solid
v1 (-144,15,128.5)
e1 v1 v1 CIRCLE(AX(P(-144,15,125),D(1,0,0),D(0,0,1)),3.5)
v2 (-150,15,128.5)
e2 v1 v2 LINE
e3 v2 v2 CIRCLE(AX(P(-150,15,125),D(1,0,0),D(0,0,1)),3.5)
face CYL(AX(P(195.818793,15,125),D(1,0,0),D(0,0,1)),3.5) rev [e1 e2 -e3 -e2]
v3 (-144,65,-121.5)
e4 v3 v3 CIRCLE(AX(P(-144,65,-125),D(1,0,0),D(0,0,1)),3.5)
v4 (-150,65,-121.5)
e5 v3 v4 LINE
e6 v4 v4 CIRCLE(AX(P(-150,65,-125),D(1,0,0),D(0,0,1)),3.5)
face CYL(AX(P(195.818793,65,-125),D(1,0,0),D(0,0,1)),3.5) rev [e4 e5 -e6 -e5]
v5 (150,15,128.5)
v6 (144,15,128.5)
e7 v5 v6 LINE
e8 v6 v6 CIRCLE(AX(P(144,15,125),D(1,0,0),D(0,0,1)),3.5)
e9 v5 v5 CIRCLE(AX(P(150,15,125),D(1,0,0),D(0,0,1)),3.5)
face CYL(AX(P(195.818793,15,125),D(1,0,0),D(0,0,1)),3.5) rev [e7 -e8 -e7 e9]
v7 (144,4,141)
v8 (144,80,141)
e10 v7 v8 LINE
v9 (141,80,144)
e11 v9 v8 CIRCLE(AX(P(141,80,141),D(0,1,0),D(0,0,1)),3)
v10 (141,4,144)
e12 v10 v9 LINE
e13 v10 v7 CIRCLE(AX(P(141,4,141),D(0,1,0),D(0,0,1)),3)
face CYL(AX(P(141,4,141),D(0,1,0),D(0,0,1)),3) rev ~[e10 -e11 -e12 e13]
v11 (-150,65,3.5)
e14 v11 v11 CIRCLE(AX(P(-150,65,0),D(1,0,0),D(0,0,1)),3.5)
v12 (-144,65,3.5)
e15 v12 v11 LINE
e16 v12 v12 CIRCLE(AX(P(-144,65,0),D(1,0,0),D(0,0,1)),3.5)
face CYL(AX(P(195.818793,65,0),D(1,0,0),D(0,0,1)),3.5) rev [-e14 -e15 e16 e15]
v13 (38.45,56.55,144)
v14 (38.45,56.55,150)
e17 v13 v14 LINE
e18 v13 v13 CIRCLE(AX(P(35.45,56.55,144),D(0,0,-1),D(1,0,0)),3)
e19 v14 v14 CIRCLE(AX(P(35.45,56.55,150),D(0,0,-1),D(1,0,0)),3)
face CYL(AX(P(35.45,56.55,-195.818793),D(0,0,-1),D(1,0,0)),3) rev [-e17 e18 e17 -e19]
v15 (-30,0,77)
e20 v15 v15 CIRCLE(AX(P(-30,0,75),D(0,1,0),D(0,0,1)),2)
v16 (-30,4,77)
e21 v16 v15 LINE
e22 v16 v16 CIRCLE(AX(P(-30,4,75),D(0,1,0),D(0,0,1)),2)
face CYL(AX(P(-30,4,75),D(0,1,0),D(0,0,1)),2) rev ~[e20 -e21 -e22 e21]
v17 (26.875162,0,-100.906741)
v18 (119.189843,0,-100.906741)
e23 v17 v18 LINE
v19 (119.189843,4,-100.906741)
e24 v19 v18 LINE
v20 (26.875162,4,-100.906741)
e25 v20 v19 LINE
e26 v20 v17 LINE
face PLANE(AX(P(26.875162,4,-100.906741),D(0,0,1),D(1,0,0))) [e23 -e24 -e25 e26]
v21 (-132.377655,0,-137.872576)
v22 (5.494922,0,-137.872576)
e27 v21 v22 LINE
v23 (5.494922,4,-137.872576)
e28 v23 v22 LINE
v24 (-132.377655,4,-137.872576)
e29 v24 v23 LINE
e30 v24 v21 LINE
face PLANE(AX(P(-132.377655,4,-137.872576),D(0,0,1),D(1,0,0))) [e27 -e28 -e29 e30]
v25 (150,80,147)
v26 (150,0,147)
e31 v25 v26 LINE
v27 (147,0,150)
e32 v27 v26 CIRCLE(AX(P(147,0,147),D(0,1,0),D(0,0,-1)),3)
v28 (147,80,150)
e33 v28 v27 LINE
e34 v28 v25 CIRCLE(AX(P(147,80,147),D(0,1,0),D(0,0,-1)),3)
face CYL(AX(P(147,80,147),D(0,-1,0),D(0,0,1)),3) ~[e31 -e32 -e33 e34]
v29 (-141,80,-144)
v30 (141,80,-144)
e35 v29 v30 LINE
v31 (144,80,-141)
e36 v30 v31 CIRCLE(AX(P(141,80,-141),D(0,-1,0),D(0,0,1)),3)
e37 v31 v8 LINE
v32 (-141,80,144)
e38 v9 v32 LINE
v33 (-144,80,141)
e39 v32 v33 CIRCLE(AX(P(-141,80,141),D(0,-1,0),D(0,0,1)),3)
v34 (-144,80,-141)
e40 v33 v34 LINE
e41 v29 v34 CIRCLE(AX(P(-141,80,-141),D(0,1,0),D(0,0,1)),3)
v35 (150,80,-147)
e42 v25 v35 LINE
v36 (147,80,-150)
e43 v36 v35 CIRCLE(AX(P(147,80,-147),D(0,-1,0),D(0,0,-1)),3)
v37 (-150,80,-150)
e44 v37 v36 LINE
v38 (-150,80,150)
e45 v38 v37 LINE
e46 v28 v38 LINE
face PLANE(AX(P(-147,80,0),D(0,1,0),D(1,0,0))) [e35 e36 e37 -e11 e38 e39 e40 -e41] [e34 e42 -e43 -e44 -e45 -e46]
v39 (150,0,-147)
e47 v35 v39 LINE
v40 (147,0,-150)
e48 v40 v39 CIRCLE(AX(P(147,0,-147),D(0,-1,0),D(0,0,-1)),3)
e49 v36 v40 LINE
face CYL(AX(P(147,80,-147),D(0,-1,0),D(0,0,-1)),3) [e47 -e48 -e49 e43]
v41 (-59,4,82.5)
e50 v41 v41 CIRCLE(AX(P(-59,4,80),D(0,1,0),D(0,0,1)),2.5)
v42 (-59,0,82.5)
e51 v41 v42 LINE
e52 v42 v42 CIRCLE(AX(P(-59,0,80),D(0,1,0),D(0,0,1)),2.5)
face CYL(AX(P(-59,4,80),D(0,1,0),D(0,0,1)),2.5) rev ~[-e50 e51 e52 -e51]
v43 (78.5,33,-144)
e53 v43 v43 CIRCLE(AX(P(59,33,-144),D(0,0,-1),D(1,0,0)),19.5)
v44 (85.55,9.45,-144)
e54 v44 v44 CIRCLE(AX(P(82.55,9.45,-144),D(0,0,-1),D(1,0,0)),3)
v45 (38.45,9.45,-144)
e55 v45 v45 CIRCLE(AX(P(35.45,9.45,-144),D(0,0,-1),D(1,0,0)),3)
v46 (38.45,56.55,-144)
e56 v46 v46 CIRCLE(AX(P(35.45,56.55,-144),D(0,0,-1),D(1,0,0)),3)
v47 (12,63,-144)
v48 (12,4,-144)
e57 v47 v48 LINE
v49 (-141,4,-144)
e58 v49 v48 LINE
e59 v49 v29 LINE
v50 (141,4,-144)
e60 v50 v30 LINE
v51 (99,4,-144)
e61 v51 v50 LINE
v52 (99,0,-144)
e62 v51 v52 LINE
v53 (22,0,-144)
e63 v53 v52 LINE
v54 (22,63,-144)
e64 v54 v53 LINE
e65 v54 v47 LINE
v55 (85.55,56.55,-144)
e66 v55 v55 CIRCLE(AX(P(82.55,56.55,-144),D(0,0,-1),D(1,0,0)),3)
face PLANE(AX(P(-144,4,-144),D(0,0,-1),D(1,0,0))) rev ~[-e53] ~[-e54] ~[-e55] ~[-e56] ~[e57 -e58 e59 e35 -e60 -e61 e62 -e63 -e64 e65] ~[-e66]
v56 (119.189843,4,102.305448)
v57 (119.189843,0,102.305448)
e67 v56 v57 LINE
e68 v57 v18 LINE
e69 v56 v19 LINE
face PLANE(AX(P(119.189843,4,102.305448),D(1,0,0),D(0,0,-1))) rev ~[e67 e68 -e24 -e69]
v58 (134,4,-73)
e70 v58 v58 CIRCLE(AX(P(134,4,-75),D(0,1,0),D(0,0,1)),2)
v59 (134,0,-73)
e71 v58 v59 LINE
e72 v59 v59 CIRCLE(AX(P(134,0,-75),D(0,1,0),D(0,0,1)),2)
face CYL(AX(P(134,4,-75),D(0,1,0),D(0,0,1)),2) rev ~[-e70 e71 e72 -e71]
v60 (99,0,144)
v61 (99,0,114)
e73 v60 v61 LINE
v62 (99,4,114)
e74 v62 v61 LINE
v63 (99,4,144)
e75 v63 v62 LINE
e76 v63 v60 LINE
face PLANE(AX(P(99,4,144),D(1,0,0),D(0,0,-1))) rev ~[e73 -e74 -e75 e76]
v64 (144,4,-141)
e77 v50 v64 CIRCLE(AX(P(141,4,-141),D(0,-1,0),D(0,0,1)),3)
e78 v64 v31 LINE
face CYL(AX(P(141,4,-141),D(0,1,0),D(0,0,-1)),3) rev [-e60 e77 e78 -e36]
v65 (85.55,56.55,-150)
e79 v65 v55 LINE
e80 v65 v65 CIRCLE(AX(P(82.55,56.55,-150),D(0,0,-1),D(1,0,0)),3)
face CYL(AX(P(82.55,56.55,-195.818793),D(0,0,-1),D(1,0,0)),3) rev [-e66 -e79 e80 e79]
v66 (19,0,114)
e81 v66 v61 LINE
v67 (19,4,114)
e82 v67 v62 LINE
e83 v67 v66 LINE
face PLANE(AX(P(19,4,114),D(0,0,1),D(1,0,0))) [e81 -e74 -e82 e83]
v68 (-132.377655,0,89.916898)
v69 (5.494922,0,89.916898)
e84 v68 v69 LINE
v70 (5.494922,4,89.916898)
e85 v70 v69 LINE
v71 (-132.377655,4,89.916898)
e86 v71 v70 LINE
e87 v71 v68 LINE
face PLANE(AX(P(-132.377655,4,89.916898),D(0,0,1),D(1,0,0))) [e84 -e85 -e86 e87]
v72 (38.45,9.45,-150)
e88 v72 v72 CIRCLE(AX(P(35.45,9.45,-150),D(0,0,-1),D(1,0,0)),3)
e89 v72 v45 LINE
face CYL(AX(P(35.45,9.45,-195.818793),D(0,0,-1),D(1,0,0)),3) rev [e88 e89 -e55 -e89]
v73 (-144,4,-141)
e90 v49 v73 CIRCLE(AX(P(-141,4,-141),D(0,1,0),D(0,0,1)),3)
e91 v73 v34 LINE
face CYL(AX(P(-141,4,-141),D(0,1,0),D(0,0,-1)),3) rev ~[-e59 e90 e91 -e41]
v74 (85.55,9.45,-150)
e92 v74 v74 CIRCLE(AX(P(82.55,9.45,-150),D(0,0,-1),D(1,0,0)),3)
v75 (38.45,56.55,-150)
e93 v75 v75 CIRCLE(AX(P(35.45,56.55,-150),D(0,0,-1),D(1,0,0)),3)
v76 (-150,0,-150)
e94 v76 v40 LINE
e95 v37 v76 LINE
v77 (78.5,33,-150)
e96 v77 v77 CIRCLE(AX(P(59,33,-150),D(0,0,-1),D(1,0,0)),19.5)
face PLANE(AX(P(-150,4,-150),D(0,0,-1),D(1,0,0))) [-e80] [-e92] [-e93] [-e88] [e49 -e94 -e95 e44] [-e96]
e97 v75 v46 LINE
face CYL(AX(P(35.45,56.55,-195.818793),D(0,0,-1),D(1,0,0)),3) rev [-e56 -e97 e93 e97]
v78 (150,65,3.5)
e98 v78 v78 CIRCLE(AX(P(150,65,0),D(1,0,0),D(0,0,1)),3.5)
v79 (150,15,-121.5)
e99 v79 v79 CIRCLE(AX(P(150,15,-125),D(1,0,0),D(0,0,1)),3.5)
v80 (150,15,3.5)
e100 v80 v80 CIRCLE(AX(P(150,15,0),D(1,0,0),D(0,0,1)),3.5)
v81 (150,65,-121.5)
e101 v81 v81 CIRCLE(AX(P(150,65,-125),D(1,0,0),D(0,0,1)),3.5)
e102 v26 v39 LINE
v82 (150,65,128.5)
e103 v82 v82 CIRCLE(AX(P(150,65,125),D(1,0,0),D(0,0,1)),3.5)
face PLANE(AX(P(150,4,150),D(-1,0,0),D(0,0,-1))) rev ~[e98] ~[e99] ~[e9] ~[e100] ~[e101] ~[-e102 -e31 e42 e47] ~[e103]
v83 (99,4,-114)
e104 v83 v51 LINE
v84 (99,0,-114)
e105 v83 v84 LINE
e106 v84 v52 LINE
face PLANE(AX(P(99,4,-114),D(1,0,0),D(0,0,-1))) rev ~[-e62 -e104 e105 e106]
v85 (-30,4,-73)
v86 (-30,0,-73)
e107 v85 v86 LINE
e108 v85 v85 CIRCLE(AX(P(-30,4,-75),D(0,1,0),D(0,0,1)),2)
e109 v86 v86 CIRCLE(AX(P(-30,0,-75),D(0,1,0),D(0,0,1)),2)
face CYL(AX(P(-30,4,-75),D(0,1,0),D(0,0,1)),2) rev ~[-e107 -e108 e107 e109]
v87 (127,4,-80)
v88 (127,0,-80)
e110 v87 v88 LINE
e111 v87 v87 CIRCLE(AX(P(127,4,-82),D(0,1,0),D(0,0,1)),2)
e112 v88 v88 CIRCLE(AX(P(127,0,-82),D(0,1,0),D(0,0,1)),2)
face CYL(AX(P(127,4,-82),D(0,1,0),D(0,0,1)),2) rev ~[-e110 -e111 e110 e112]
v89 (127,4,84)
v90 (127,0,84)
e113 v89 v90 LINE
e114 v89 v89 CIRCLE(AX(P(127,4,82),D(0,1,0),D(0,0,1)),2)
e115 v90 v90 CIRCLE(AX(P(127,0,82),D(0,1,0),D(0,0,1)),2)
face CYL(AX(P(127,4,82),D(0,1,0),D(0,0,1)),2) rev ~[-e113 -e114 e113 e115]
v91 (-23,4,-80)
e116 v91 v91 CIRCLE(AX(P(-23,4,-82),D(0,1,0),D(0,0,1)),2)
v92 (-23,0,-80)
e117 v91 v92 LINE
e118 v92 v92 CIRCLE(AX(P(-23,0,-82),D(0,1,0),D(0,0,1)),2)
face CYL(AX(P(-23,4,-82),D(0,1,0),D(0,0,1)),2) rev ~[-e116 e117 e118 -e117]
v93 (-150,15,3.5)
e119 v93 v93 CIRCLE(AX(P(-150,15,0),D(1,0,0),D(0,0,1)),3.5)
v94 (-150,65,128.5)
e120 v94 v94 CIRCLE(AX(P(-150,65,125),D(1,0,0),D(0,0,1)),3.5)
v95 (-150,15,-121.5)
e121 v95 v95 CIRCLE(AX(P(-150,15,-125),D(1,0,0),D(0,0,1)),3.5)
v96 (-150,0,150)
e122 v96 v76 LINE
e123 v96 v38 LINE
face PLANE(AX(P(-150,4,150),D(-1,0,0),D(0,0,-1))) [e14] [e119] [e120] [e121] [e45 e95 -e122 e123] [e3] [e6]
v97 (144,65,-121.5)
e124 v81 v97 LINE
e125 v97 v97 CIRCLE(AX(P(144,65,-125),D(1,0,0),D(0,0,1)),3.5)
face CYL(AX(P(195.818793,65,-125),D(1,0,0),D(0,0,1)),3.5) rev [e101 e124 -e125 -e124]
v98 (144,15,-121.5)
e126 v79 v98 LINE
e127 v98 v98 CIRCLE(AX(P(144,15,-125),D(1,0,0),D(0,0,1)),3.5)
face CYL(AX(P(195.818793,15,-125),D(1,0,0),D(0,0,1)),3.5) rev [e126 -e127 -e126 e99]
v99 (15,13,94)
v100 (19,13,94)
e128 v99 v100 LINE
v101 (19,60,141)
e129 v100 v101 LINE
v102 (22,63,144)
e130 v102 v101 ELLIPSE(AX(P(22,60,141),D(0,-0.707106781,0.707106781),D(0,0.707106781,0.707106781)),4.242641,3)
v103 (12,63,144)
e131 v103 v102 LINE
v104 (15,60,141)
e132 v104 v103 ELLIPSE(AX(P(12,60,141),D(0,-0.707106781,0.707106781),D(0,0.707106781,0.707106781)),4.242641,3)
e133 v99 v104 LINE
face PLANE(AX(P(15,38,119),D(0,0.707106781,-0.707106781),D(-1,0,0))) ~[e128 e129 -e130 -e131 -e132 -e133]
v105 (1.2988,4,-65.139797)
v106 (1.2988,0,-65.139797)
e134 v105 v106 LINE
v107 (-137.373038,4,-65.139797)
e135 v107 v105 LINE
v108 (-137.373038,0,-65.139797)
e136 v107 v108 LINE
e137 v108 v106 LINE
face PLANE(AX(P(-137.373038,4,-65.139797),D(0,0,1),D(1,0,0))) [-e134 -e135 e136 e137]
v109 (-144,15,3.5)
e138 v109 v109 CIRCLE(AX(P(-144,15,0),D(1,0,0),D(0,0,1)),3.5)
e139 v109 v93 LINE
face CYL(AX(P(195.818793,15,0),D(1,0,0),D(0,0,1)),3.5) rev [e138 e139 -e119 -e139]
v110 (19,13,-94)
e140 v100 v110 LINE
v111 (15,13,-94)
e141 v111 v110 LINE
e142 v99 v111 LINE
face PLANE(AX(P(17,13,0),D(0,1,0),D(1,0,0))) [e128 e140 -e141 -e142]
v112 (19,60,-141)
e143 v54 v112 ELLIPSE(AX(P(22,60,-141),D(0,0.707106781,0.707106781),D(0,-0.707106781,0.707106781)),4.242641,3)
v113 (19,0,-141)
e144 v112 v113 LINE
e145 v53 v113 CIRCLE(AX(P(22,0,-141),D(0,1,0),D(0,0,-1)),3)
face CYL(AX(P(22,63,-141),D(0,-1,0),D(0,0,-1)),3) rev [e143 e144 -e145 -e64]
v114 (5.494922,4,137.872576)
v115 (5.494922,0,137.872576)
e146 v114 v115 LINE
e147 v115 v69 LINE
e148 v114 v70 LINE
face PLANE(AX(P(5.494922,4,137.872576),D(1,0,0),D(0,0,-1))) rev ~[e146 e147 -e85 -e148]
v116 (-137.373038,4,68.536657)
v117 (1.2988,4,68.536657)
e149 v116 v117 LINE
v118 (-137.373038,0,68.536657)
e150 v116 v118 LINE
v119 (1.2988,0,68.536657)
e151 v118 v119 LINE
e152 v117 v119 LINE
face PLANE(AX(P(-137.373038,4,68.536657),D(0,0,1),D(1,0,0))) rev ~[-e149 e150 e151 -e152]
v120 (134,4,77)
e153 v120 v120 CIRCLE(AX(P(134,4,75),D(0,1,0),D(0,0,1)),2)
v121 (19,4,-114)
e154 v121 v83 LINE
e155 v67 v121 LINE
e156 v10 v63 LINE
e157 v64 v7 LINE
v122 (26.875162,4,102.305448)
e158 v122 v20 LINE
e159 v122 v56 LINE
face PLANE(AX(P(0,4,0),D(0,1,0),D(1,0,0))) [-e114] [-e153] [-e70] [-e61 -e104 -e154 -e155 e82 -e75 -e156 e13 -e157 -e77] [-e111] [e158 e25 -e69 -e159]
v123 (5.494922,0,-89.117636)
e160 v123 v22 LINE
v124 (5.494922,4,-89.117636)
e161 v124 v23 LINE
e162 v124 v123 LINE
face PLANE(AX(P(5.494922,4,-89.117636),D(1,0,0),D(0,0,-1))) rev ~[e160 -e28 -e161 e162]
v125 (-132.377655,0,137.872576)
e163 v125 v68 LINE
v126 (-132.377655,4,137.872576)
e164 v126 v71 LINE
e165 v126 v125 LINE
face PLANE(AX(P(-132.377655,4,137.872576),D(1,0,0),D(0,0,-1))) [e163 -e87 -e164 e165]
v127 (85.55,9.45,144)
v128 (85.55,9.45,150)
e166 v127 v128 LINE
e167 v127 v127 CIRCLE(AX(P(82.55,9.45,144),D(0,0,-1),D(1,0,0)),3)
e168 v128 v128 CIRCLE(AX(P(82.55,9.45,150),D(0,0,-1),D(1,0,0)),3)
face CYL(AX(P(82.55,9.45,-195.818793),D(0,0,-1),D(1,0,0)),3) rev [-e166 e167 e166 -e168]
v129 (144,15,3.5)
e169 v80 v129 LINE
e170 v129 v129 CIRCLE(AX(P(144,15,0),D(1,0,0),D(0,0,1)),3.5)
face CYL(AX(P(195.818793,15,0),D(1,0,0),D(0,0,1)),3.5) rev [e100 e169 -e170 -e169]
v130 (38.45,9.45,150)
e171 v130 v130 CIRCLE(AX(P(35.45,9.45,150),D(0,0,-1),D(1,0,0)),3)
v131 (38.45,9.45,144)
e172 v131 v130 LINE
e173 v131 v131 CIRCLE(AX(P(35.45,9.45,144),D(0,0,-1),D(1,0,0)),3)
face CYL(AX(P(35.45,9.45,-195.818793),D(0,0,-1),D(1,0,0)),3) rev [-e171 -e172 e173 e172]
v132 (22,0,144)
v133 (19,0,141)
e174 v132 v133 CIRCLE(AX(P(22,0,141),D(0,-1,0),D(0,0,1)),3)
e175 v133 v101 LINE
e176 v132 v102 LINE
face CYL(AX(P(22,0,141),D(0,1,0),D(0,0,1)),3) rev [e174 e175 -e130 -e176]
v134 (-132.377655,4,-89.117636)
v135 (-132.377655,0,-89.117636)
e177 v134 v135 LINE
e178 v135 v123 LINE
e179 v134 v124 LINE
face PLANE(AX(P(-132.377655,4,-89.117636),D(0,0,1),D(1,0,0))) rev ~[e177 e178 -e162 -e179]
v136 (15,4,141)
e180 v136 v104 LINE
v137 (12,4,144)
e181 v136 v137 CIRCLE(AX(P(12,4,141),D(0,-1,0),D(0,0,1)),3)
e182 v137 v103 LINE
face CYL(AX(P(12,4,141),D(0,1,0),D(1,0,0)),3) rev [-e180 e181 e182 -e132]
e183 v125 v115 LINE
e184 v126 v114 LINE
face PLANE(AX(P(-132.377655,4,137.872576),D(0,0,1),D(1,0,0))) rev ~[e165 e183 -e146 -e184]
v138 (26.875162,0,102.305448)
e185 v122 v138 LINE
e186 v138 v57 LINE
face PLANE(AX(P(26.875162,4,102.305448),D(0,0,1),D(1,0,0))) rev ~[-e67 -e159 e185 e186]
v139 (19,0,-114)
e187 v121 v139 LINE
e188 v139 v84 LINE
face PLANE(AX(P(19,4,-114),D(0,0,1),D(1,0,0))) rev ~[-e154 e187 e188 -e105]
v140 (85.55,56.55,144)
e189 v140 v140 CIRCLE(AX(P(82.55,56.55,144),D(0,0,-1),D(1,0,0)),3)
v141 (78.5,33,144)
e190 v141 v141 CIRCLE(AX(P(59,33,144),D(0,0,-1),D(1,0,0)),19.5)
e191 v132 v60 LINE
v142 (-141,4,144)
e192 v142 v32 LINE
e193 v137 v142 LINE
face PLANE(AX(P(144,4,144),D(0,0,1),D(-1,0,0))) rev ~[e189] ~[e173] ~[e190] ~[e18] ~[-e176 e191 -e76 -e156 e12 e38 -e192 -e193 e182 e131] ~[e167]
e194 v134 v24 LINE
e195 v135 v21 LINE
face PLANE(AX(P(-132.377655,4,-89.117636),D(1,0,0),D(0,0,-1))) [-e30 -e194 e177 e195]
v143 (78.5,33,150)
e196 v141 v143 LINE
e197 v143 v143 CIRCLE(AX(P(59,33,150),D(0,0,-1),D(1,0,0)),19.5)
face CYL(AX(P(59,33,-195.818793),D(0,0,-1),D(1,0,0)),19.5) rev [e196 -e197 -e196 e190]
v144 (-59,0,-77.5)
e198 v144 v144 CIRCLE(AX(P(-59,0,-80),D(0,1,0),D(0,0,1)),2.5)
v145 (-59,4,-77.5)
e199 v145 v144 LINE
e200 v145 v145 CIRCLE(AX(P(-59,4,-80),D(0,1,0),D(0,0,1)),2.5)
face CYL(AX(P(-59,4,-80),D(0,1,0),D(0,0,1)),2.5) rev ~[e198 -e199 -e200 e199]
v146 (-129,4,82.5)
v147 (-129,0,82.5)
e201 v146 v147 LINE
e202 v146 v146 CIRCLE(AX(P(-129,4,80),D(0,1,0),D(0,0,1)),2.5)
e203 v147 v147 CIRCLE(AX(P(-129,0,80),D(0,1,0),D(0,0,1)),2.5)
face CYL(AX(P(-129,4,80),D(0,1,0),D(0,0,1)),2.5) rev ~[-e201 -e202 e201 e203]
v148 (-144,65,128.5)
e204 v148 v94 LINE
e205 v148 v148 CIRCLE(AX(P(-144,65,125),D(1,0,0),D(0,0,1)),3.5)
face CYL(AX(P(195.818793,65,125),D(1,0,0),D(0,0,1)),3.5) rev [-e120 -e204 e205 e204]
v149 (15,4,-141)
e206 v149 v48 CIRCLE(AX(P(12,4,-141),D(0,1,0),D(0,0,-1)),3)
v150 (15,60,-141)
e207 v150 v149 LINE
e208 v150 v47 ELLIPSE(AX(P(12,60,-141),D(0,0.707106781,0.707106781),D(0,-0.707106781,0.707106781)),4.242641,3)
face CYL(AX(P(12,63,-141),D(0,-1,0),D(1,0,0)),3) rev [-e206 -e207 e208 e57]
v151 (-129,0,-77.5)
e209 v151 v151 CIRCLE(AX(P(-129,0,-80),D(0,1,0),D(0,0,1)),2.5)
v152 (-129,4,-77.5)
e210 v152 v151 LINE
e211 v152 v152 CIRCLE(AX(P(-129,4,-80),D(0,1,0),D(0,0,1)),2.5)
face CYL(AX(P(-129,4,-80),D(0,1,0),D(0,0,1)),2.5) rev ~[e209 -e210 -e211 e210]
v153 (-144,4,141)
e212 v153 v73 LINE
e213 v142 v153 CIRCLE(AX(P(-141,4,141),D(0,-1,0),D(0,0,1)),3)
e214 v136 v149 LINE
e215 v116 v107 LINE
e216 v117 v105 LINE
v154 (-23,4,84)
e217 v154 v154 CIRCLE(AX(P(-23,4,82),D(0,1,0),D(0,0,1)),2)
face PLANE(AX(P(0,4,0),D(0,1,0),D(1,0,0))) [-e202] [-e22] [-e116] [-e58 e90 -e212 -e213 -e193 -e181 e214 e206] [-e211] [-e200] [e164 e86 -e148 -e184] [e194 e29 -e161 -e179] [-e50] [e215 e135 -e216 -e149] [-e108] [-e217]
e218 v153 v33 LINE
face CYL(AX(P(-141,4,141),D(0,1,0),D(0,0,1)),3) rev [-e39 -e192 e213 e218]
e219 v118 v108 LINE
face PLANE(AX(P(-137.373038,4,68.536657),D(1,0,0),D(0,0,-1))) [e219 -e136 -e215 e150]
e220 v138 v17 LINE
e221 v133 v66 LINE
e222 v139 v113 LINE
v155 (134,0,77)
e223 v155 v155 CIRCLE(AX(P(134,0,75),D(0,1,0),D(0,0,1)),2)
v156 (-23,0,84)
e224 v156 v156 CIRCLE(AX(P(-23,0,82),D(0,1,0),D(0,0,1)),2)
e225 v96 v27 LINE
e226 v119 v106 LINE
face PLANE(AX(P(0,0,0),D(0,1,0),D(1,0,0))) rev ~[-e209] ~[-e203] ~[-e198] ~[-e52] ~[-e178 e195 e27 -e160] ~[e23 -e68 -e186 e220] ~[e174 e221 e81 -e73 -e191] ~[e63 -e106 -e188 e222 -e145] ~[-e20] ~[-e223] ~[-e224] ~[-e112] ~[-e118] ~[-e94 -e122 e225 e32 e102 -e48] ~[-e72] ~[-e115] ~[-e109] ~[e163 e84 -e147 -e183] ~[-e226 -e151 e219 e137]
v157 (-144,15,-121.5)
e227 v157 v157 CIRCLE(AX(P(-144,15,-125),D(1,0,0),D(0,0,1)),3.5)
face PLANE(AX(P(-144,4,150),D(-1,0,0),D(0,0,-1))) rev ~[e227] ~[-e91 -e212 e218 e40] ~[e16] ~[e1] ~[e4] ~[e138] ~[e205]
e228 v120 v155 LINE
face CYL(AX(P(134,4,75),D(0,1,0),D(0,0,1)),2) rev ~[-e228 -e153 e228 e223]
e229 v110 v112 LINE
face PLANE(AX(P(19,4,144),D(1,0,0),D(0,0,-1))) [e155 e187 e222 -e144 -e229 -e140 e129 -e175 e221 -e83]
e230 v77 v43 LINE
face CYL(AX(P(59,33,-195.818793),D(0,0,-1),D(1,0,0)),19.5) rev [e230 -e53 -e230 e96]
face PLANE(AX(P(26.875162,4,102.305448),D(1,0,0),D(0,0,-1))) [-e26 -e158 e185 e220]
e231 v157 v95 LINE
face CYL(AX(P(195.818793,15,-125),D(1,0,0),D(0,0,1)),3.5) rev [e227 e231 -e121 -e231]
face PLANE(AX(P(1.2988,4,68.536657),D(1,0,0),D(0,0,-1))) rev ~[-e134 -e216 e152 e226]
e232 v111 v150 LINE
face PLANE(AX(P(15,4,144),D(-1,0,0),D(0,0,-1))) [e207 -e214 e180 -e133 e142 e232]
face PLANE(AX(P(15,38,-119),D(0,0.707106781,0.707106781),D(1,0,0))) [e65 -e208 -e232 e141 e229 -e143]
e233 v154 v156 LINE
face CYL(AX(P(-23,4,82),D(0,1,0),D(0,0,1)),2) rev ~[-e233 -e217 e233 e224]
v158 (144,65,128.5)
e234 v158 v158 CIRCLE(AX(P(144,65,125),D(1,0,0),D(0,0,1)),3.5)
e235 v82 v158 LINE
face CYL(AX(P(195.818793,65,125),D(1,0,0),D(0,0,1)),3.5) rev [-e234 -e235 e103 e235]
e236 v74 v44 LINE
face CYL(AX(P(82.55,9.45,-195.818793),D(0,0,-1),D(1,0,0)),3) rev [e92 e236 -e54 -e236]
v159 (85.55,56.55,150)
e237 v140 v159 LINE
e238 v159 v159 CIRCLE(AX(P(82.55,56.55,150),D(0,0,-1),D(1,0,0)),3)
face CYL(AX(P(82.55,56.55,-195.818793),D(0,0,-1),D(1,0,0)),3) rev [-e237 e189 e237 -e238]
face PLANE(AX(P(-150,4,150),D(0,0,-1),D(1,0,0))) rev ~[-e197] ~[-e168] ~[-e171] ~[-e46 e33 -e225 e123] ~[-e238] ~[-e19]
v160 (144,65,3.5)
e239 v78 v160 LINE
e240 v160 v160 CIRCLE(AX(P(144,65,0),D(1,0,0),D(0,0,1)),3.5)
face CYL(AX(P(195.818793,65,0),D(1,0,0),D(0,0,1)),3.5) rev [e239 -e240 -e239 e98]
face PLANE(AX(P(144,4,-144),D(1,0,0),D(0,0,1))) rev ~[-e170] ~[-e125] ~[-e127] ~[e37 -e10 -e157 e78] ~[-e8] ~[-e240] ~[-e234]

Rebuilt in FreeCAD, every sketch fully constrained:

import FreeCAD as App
import Part
import Sketcher
Q = App.Units.Quantity


def edges_at(feature, points):
    """Names of the edges that pass closest to the given points."""
    edges = feature.Shape.Edges
    near = lambda p: min(range(len(edges)), key=lambda i: edges[i].distToShape(Part.Vertex(*p))[0])
    return sorted({f"Edge{near(p) + 1}" for p in points})


def add_polygon(sketch, points):
    """Adds a closed chain of lines whose ends are joined by coincident constraints."""
    first, n = sketch.GeometryCount, len(points)
    for a, b in zip(points, points[1:] + points[:1]):
        sketch.addGeometry(Part.LineSegment(App.Vector(*a, 0), App.Vector(*b, 0)), False)
    for i in range(n):
        sketch.addConstraint(Sketcher.Constraint("Coincident", first + i, 2, first + (i + 1) % n, 1))

doc = App.newDocument("Part")
body = doc.addObject("PartDesign::Body", "Body")

# Sketch on XZ plane
sketch1 = body.newObject("Sketcher::SketchObject", "Sketch")
sketch1.AttachmentSupport = (doc.getObject("XZ_Plane"), [""])
sketch1.MapMode = "FlatFace"
add_polygon(sketch1, [(-150, -150), (-150, 150), (150, 150), (150, -150)])  # lines 0-3
sketch1.addConstraint([
    Sketcher.Constraint("Vertical", 0),
    Sketcher.Constraint("Horizontal", 1),
    Sketcher.Constraint("Vertical", 2),
    Sketcher.Constraint("Horizontal", 3),
    Sketcher.Constraint("Symmetric", 0, 2, 2, 2, -1, 1),
    Sketcher.Constraint("Equal", 3, 0),
    Sketcher.Constraint("DistanceX", 1, 1, 1, 2, Q("300 mm")),
])
pad1 = body.newObject("PartDesign::Pad", "Pad")
pad1.Profile = sketch1
pad1.Length = 4
pad1.Reversed = True

# Sketch on XZ plane
sketch2 = body.newObject("Sketcher::SketchObject", "Sketch001")
sketch2.AttachmentSupport = (doc.getObject("XZ_Plane"), [""])
sketch2.MapMode = "FlatFace"
sketch2.AttachmentOffset = App.Placement(App.Vector(0, 0, -4), App.Rotation())
add_polygon(sketch2, [(150, -150), (-144, -150), (-144, -144), (144, -144), (144, 144), (-144, 144), (-144, 150), (150, 150)])  # lines 0-7
sketch2.addConstraint([
    Sketcher.Constraint("Horizontal", 0),
    Sketcher.Constraint("Vertical", 1),
    Sketcher.Constraint("Horizontal", 2),
    Sketcher.Constraint("Vertical", 3),
    Sketcher.Constraint("Horizontal", 4),
    Sketcher.Constraint("Vertical", 5),
    Sketcher.Constraint("Horizontal", 6),
    Sketcher.Constraint("Vertical", 7),
    Sketcher.Constraint("Symmetric", 1, 2, 3, 2, -1, 1),
    Sketcher.Constraint("Symmetric", 0, 2, 5, 2, -1),
    Sketcher.Constraint("Equal", 4, 3),
    Sketcher.Constraint("DistanceX", 0, 2, 0, 1, Q("294 mm")),
    Sketcher.Constraint("DistanceX", 2, 1, 2, 2, Q("288 mm")),
    Sketcher.Constraint("DistanceY", 1, 1, 1, 2, Q("6 mm")),
])
pad2 = body.newObject("PartDesign::Pad", "Pad001")
pad2.Profile = sketch2
pad2.Length = 76
pad2.Reversed = True
doc.recompute()

fillet = body.newObject("PartDesign::Fillet", "Fillet")
fillet.Base = (pad2, edges_at(pad2, [(150, 40, 150), (150, 40, -150)]))
fillet.Radius = 3

# Sketch on XY plane
sketch3 = body.newObject("Sketcher::SketchObject", "Sketch002")
sketch3.AttachmentSupport = (doc.getObject("XY_Plane"), [""])
sketch3.MapMode = "FlatFace"
sketch3.AttachmentOffset = App.Placement(App.Vector(0, 0, 150), App.Rotation())
sketch3.addGeometry([
    Part.Circle(App.Vector(35.45, 56.55, 0), App.Vector(0, 0, 1), 3),  # 0
    Part.Circle(App.Vector(82.55, 56.55, 0), App.Vector(0, 0, 1), 3),  # 1
    Part.Circle(App.Vector(35.45, 9.45, 0), App.Vector(0, 0, 1), 3),  # 2
    Part.Circle(App.Vector(82.55, 9.45, 0), App.Vector(0, 0, 1), 3),  # 3
    Part.Circle(App.Vector(59, 33, 0), App.Vector(0, 0, 1), 19.5),  # 4
], False)
sketch3.addConstraint([
    Sketcher.Constraint("Equal", 0, 1),
    Sketcher.Constraint("Equal", 1, 2),
    Sketcher.Constraint("Equal", 2, 3),
    Sketcher.Constraint("Horizontal", 0, 3, 1, 3),
    Sketcher.Constraint("Horizontal", 2, 3, 3, 3),
    Sketcher.Constraint("Vertical", 0, 3, 2, 3),
    Sketcher.Constraint("Vertical", 1, 3, 3, 3),
    Sketcher.Constraint("Diameter", 0, Q("6 mm")),
    Sketcher.Constraint("Diameter", 4, Q("39 mm")),
    Sketcher.Constraint("DistanceX", -1, 1, 4, 3, Q("59 mm")),
    Sketcher.Constraint("DistanceY", -1, 1, 4, 3, Q("33 mm")),
    Sketcher.Constraint("DistanceX", 0, 3, 1, 3, Q("47.1 mm")),
    Sketcher.Constraint("DistanceY", 2, 3, 0, 3, Q("47.1 mm")),
    Sketcher.Constraint("DistanceX", -1, 1, 0, 3, Q("35.45 mm")),
    Sketcher.Constraint("DistanceY", -1, 1, 0, 3, Q("56.55 mm")),
])
pocket1 = body.newObject("PartDesign::Pocket", "Pocket")
pocket1.Profile = sketch3
pocket1.Type = "ThroughAll"
pocket1.Midplane = True

# Sketch on XZ plane
sketch4 = body.newObject("Sketcher::SketchObject", "Sketch003")
sketch4.AttachmentSupport = (doc.getObject("XZ_Plane"), [""])
sketch4.MapMode = "FlatFace"
sketch4.AttachmentOffset = App.Placement(App.Vector(0, 0, -4), App.Rotation())
add_polygon(sketch4, [(-150, -150), (-150, 150), (-144, 150), (-144, -150)])  # lines 0-3
sketch4.addConstraint([
    Sketcher.Constraint("Vertical", 0),
    Sketcher.Constraint("Horizontal", 1),
    Sketcher.Constraint("Vertical", 2),
    Sketcher.Constraint("Horizontal", 3),
    Sketcher.Constraint("DistanceX", 1, 1, 1, 2, Q("6 mm")),
    Sketcher.Constraint("DistanceY", 0, 1, 0, 2, Q("300 mm")),
    Sketcher.Constraint("DistanceX", 0, 2, -1, 1, Q("150 mm")),
    Sketcher.Constraint("DistanceY", -1, 1, 0, 2, Q("150 mm")),
])
pad3 = body.newObject("PartDesign::Pad", "Pad002")
pad3.Profile = sketch4
pad3.Length = 76
pad3.Reversed = True

# Sketch on XZ plane
sketch5 = body.newObject("Sketcher::SketchObject", "Sketch004")
sketch5.AttachmentSupport = (doc.getObject("XZ_Plane"), [""])
sketch5.MapMode = "FlatFace"
sketch5.AttachmentOffset = App.Placement(App.Vector(0, 0, -4), App.Rotation())
sketch5.addGeometry([
    Part.Circle(App.Vector(127, -82, 0), App.Vector(0, 0, 1), 2),  # 0
    Part.Circle(App.Vector(134, -75, 0), App.Vector(0, 0, 1), 2),  # 1
    Part.Circle(App.Vector(-23, -82, 0), App.Vector(0, 0, 1), 2),  # 2
    Part.Circle(App.Vector(-30, -75, 0), App.Vector(0, 0, 1), 2),  # 3
    Part.Circle(App.Vector(127, 82, 0), App.Vector(0, 0, 1), 2),  # 4
    Part.Circle(App.Vector(134, 75, 0), App.Vector(0, 0, 1), 2),  # 5
    Part.Circle(App.Vector(-30, 75, 0), App.Vector(0, 0, 1), 2),  # 6
    Part.Circle(App.Vector(-23, 82, 0), App.Vector(0, 0, 1), 2),  # 7
], False)
sketch5.addConstraint([
    Sketcher.Constraint("Equal", 0, 1),
    Sketcher.Constraint("Equal", 1, 2),
    Sketcher.Constraint("Equal", 2, 3),
    Sketcher.Constraint("Equal", 3, 4),
    Sketcher.Constraint("Equal", 4, 5),
    Sketcher.Constraint("Equal", 5, 6),
    Sketcher.Constraint("Equal", 6, 7),
    Sketcher.Constraint("Symmetric", 0, 3, 4, 3, -1),
    Sketcher.Constraint("Symmetric", 1, 3, 5, 3, -1),
    Sketcher.Constraint("Symmetric", 3, 3, 6, 3, -1),
    Sketcher.Constraint("Symmetric", 2, 3, 7, 3, -1),
    Sketcher.Constraint("Horizontal", 0, 3, 2, 3),
    Sketcher.Constraint("Horizontal", 1, 3, 3, 3),
    Sketcher.Constraint("Diameter", 0, Q("4 mm")),
    Sketcher.Constraint("DistanceX", -1, 1, 0, 3, Q("127 mm")),
    Sketcher.Constraint("DistanceY", 0, 3, -1, 1, Q("82 mm")),
    Sketcher.Constraint("DistanceX", -1, 1, 1, 3, Q("134 mm")),
    Sketcher.Constraint("DistanceY", 1, 3, -1, 1, Q("75 mm")),
    Sketcher.Constraint("DistanceX", 2, 3, -1, 1, Q("23 mm")),
    Sketcher.Constraint("DistanceX", 3, 3, -1, 1, Q("30 mm")),
])
pocket2 = body.newObject("PartDesign::Pocket", "Pocket001")
pocket2.Profile = sketch5
pocket2.Length = 10
pocket2.Reversed = True

# Sketch on XZ plane
sketch6 = body.newObject("Sketcher::SketchObject", "Sketch005")
sketch6.AttachmentSupport = (doc.getObject("XZ_Plane"), [""])
sketch6.MapMode = "FlatFace"
sketch6.AttachmentOffset = App.Placement(App.Vector(0, 0, -4), App.Rotation())
add_polygon(sketch6, [(19, -144), (19, -114), (99, -114), (99, -144)])  # lines 0-3
add_polygon(sketch6, [(19, 114), (19, 144), (99, 144), (99, 114)])  # lines 4-7
sketch6.addConstraint([
    Sketcher.Constraint("Vertical", 0),
    Sketcher.Constraint("Horizontal", 1),
    Sketcher.Constraint("Vertical", 2),
    Sketcher.Constraint("Horizontal", 3),
    Sketcher.Constraint("Vertical", 4),
    Sketcher.Constraint("Horizontal", 5),
    Sketcher.Constraint("Vertical", 6),
    Sketcher.Constraint("Horizontal", 7),
    Sketcher.Constraint("Symmetric", 3, 2, 4, 2, -1),
    Sketcher.Constraint("Symmetric", 1, 2, 6, 2, -1),
    Sketcher.Constraint("DistanceX", 1, 1, 1, 2, Q("80 mm")),
    Sketcher.Constraint("DistanceY", 0, 1, 0, 2, Q("30 mm")),
    Sketcher.Constraint("DistanceX", -1, 1, 0, 2, Q("19 mm")),
    Sketcher.Constraint("DistanceY", 0, 2, -1, 1, Q("114 mm")),
])
pocket3 = body.newObject("PartDesign::Pocket", "Pocket002")
pocket3.Profile = sketch6
pocket3.Length = 20
pocket3.Reversed = True

# Sketch on YZ plane
sketch7 = body.newObject("Sketcher::SketchObject", "Sketch006")
sketch7.AttachmentSupport = (doc.getObject("YZ_Plane"), [""])
sketch7.MapMode = "FlatFace"
sketch7.AttachmentOffset = App.Placement(App.Vector(0, 0, -150), App.Rotation())
sketch7.addGeometry([
    Part.Circle(App.Vector(65, 0, 0), App.Vector(0, 0, 1), 3.5),  # 0
    Part.Circle(App.Vector(65, 125, 0), App.Vector(0, 0, 1), 3.5),  # 1
    Part.Circle(App.Vector(65, -125, 0), App.Vector(0, 0, 1), 3.5),  # 2
    Part.Circle(App.Vector(15, -125, 0), App.Vector(0, 0, 1), 3.5),  # 3
    Part.Circle(App.Vector(15, 125, 0), App.Vector(0, 0, 1), 3.5),  # 4
    Part.Circle(App.Vector(15, 0, 0), App.Vector(0, 0, 1), 3.5),  # 5
], False)
sketch7.addConstraint([
    Sketcher.Constraint("Equal", 0, 1),
    Sketcher.Constraint("Equal", 1, 2),
    Sketcher.Constraint("Equal", 2, 3),
    Sketcher.Constraint("Equal", 3, 4),
    Sketcher.Constraint("Equal", 4, 5),
    Sketcher.Constraint("Symmetric", 1, 3, 2, 3, -1),
    Sketcher.Constraint("Symmetric", 3, 3, 4, 3, -1),
    Sketcher.Constraint("PointOnObject", 0, 3, -1),
    Sketcher.Constraint("PointOnObject", 5, 3, -1),
    Sketcher.Constraint("Horizontal", 2, 3, 3, 3),
    Sketcher.Constraint("Vertical", 0, 3, 1, 3),
    Sketcher.Constraint("Vertical", 4, 3, 5, 3),
    Sketcher.Constraint("Diameter", 0, Q("7 mm")),
    Sketcher.Constraint("DistanceX", -1, 1, 0, 3, Q("65 mm")),
    Sketcher.Constraint("DistanceY", -1, 1, 1, 3, Q("125 mm")),
    Sketcher.Constraint("DistanceX", -1, 1, 3, 3, Q("15 mm")),
])
pocket4 = body.newObject("PartDesign::Pocket", "Pocket003")
pocket4.Profile = sketch7
pocket4.Type = "ThroughAll"
pocket4.Midplane = True

# Sketch on XZ plane
sketch8 = body.newObject("Sketcher::SketchObject", "Sketch007")
sketch8.AttachmentSupport = (doc.getObject("XZ_Plane"), [""])
sketch8.MapMode = "FlatFace"
sketch8.AttachmentOffset = App.Placement(App.Vector(0, 0, -4), App.Rotation())
add_polygon(sketch8, [(15, -144), (15, 144), (19, 144), (19, -144)])  # lines 0-3
sketch8.addConstraint([
    Sketcher.Constraint("Vertical", 0),
    Sketcher.Constraint("Horizontal", 1),
    Sketcher.Constraint("Vertical", 2),
    Sketcher.Constraint("Horizontal", 3),
    Sketcher.Constraint("DistanceX", 1, 1, 1, 2, Q("4 mm")),
    Sketcher.Constraint("DistanceY", 0, 1, 0, 2, Q("288 mm")),
    Sketcher.Constraint("DistanceX", -1, 1, 0, 2, Q("15 mm")),
    Sketcher.Constraint("DistanceY", -1, 1, 0, 2, Q("144 mm")),
])
pad4 = body.newObject("PartDesign::Pad", "Pad003")
pad4.Profile = sketch8
pad4.Length = 9
pad4.Reversed = True
doc.recompute()

chamfer = body.newObject("PartDesign::Chamfer", "Chamfer")
chamfer.Base = (pad4, edges_at(pad4, [(17, 13, -144), (17, 13, 144)]))
chamfer.Size = 50

# Sketch on XZ plane
sketch9 = body.newObject("Sketcher::SketchObject", "Sketch008")
sketch9.AttachmentSupport = (doc.getObject("XZ_Plane"), [""])
sketch9.MapMode = "FlatFace"
sketch9.AttachmentOffset = App.Placement(App.Vector(0, 0, -4), App.Rotation())
sketch9.addGeometry([
    Part.Circle(App.Vector(0, -134, 0), App.Vector(0, 0, 1), 2.25),  # 0
    Part.Circle(App.Vector(0, -104, 0), App.Vector(0, 0, 1), 2.25),  # 1
    Part.Circle(App.Vector(-64, -134, 0), App.Vector(0, 0, 1), 2.25),  # 2
    Part.Circle(App.Vector(-64, -104, 0), App.Vector(0, 0, 1), 2.25),  # 3
    Part.Circle(App.Vector(-128, -134, 0), App.Vector(0, 0, 1), 2.25),  # 4
    Part.Circle(App.Vector(-128, -104, 0), App.Vector(0, 0, 1), 2.25),  # 5
    Part.Circle(App.Vector(-128, 104, 0), App.Vector(0, 0, 1), 2.25),  # 6
    Part.Circle(App.Vector(-128, 134, 0), App.Vector(0, 0, 1), 2.25),  # 7
    Part.Circle(App.Vector(-64, 104, 0), App.Vector(0, 0, 1), 2.25),  # 8
    Part.Circle(App.Vector(-64, 134, 0), App.Vector(0, 0, 1), 2.25),  # 9
    Part.Circle(App.Vector(0, 104, 0), App.Vector(0, 0, 1), 2.25),  # 10
    Part.Circle(App.Vector(0, 134, 0), App.Vector(0, 0, 1), 2.25),  # 11
    Part.Circle(App.Vector(-129, 0, 0), App.Vector(0, 0, 1), 2.5),  # 12
    Part.Circle(App.Vector(-59, 0, 0), App.Vector(0, 0, 1), 2.5),  # 13
    Part.Circle(App.Vector(-59, -40, 0), App.Vector(0, 0, 1), 2.5),  # 14
    Part.Circle(App.Vector(-129, -40, 0), App.Vector(0, 0, 1), 2.5),  # 15
    Part.Circle(App.Vector(-59, -80, 0), App.Vector(0, 0, 1), 2.5),  # 16
    Part.Circle(App.Vector(-129, -80, 0), App.Vector(0, 0, 1), 2.5),  # 17
    Part.Circle(App.Vector(-59, 40, 0), App.Vector(0, 0, 1), 2.5),  # 18
    Part.Circle(App.Vector(-129, 40, 0), App.Vector(0, 0, 1), 2.5),  # 19
    Part.Circle(App.Vector(-59, 80, 0), App.Vector(0, 0, 1), 2.5),  # 20
    Part.Circle(App.Vector(-129, 80, 0), App.Vector(0, 0, 1), 2.5),  # 21
], False)
sketch9.addConstraint([
    Sketcher.Constraint("Equal", 0, 1),
    Sketcher.Constraint("Equal", 1, 2),
    Sketcher.Constraint("Equal", 2, 3),
    Sketcher.Constraint("Equal", 3, 4),
    Sketcher.Constraint("Equal", 4, 5),
    Sketcher.Constraint("Equal", 5, 6),
    Sketcher.Constraint("Equal", 6, 7),
    Sketcher.Constraint("Equal", 7, 8),
    Sketcher.Constraint("Equal", 8, 9),
    Sketcher.Constraint("Equal", 9, 10),
    Sketcher.Constraint("Equal", 10, 11),
    Sketcher.Constraint("Equal", 12, 13),
    Sketcher.Constraint("Equal", 13, 14),
    Sketcher.Constraint("Equal", 14, 15),
    Sketcher.Constraint("Equal", 15, 16),
    Sketcher.Constraint("Equal", 16, 17),
    Sketcher.Constraint("Equal", 17, 18),
    Sketcher.Constraint("Equal", 18, 19),
    Sketcher.Constraint("Equal", 19, 20),
    Sketcher.Constraint("Equal", 20, 21),
    Sketcher.Constraint("Symmetric", 1, 3, 10, 3, -1, 1),
    Sketcher.Constraint("Symmetric", 0, 3, 11, 3, -1, 1),
    Sketcher.Constraint("Symmetric", 5, 3, 6, 3, -1),
    Sketcher.Constraint("Symmetric", 4, 3, 7, 3, -1),
    Sketcher.Constraint("Symmetric", 3, 3, 8, 3, -1),
    Sketcher.Constraint("Symmetric", 2, 3, 9, 3, -1),
    Sketcher.Constraint("Symmetric", 14, 3, 18, 3, -1),
    Sketcher.Constraint("Symmetric", 15, 3, 19, 3, -1),
    Sketcher.Constraint("Symmetric", 16, 3, 20, 3, -1),
    Sketcher.Constraint("Symmetric", 17, 3, 21, 3, -1),
    Sketcher.Constraint("PointOnObject", 0, 3, -2),
    Sketcher.Constraint("PointOnObject", 1, 3, -2),
    Sketcher.Constraint("PointOnObject", 12, 3, -1),
    Sketcher.Constraint("PointOnObject", 13, 3, -1),
    Sketcher.Constraint("Horizontal", 0, 3, 2, 3),
    Sketcher.Constraint("Horizontal", 1, 3, 3, 3),
    Sketcher.Constraint("Horizontal", 2, 3, 4, 3),
    Sketcher.Constraint("Horizontal", 3, 3, 5, 3),
    Sketcher.Constraint("Horizontal", 14, 3, 15, 3),
    Sketcher.Constraint("Horizontal", 16, 3, 17, 3),
    Sketcher.Constraint("Vertical", 2, 3, 3, 3),
    Sketcher.Constraint("Vertical", 4, 3, 5, 3),
    Sketcher.Constraint("Vertical", 13, 3, 14, 3),
    Sketcher.Constraint("Vertical", 12, 3, 15, 3),
    Sketcher.Constraint("Vertical", 14, 3, 16, 3),
    Sketcher.Constraint("Vertical", 15, 3, 17, 3),
    Sketcher.Constraint("Diameter", 12, Q("5 mm")),
    Sketcher.Constraint("Diameter", 0, Q("4.5 mm")),
    Sketcher.Constraint("DistanceY", 0, 3, -1, 1, Q("134 mm")),
    Sketcher.Constraint("DistanceY", 1, 3, -1, 1, Q("104 mm")),
    Sketcher.Constraint("DistanceX", 2, 3, -1, 1, Q("64 mm")),
    Sketcher.Constraint("DistanceX", 4, 3, -1, 1, Q("128 mm")),
    Sketcher.Constraint("DistanceX", 12, 3, -1, 1, Q("129 mm")),
    Sketcher.Constraint("DistanceX", 13, 3, -1, 1, Q("59 mm")),
    Sketcher.Constraint("DistanceY", 14, 3, -1, 1, Q("40 mm")),
    Sketcher.Constraint("DistanceY", 16, 3, -1, 1, Q("80 mm")),
])
pocket5 = body.newObject("PartDesign::Pocket", "Pocket004")
pocket5.Profile = sketch9
pocket5.Length = 6
pocket5.Reversed = True

# Sketch on XZ plane
sketch10 = body.newObject("Sketcher::SketchObject", "Sketch009")
sketch10.AttachmentSupport = (doc.getObject("XZ_Plane"), [""])
sketch10.MapMode = "FlatFace"
sketch10.AttachmentOffset = App.Placement(App.Vector(0, 0, -4), App.Rotation())
add_polygon(sketch10, [(-132.377655, 89.916898), (-132.377655, 137.872576), (5.494922, 137.872576), (5.494922, 89.916898)])  # lines 0-3
add_polygon(sketch10, [(26.875162, -100.906741), (26.875162, 102.305448), (119.189843, 102.305448), (119.189843, -100.906741)])  # lines 4-7
add_polygon(sketch10, [(-137.373038, -65.139797), (-137.373038, 68.536657), (1.2988, 68.536657), (1.2988, -65.139797)])  # lines 8-11
add_polygon(sketch10, [(-132.377655, -137.872576), (-132.377655, -89.117636), (5.494922, -89.117636), (5.494922, -137.872576)])  # lines 12-15
sketch10.addConstraint([
    Sketcher.Constraint("Vertical", 0),
    Sketcher.Constraint("Horizontal", 1),
    Sketcher.Constraint("Vertical", 2),
    Sketcher.Constraint("Horizontal", 3),
    Sketcher.Constraint("Vertical", 4),
    Sketcher.Constraint("Horizontal", 5),
    Sketcher.Constraint("Vertical", 6),
    Sketcher.Constraint("Horizontal", 7),
    Sketcher.Constraint("Vertical", 8),
    Sketcher.Constraint("Horizontal", 9),
    Sketcher.Constraint("Vertical", 10),
    Sketcher.Constraint("Horizontal", 11),
    Sketcher.Constraint("Vertical", 12),
    Sketcher.Constraint("Horizontal", 13),
    Sketcher.Constraint("Vertical", 14),
    Sketcher.Constraint("Horizontal", 15),
    Sketcher.Constraint("Symmetric", 1, 2, 14, 2, -1),
    Sketcher.Constraint("Vertical", 3, 2, 12, 2),
    Sketcher.Constraint("DistanceX", 5, 1, 5, 2, Q("92.314681 mm")),
    Sketcher.Constraint("DistanceY", 0, 1, 0, 2, Q("47.955679 mm")),
    Sketcher.Constraint("DistanceY", 4, 1, 4, 2, Q("203.212188 mm")),
    Sketcher.Constraint("DistanceY", 12, 1, 12, 2, Q("48.75494 mm")),
    Sketcher.Constraint("DistanceX", -1, 1, 9, 2, Q("1.2988 mm")),
    Sketcher.Constraint("DistanceX", 8, 2, 4, 2, Q("164.248199 mm")),
    Sketcher.Constraint("DistanceX", 1, 1, 1, 2, Q("137.872576 mm")),
    Sketcher.Constraint("DistanceX", 9, 1, 9, 2, Q("138.671837 mm")),
    Sketcher.Constraint("DistanceY", 8, 1, 8, 2, Q("133.676454 mm")),
    Sketcher.Constraint("DistanceX", -1, 1, 1, 2, Q("5.494922 mm")),
    Sketcher.Constraint("DistanceY", 6, 2, -1, 1, Q("100.906741 mm")),
    Sketcher.Constraint("DistanceY", 2, 2, 4, 2, Q("12.38855 mm")),
    Sketcher.Constraint("DistanceY", 8, 2, 3, 2, Q("21.38024 mm")),
])
pocket6 = body.newObject("PartDesign::Pocket", "Pocket005")
pocket6.Profile = sketch10
pocket6.Length = 6
pocket6.Reversed = True
doc.recompute()

fillet2 = body.newObject("PartDesign::Fillet", "Fillet001")
fillet2.Base = (pocket6, edges_at(pocket6, [
    (-144, 42, -144),
    (19, 31.5, -144),
    (144, 42, -144),
    (144, 42, 144),
    (19, 31.5, 144),
    (-144, 42, 144),
    (15, 33.5, -144),
    (15, 33.5, 144),
]))
fillet2.Radius = 3

doc.recompute()
